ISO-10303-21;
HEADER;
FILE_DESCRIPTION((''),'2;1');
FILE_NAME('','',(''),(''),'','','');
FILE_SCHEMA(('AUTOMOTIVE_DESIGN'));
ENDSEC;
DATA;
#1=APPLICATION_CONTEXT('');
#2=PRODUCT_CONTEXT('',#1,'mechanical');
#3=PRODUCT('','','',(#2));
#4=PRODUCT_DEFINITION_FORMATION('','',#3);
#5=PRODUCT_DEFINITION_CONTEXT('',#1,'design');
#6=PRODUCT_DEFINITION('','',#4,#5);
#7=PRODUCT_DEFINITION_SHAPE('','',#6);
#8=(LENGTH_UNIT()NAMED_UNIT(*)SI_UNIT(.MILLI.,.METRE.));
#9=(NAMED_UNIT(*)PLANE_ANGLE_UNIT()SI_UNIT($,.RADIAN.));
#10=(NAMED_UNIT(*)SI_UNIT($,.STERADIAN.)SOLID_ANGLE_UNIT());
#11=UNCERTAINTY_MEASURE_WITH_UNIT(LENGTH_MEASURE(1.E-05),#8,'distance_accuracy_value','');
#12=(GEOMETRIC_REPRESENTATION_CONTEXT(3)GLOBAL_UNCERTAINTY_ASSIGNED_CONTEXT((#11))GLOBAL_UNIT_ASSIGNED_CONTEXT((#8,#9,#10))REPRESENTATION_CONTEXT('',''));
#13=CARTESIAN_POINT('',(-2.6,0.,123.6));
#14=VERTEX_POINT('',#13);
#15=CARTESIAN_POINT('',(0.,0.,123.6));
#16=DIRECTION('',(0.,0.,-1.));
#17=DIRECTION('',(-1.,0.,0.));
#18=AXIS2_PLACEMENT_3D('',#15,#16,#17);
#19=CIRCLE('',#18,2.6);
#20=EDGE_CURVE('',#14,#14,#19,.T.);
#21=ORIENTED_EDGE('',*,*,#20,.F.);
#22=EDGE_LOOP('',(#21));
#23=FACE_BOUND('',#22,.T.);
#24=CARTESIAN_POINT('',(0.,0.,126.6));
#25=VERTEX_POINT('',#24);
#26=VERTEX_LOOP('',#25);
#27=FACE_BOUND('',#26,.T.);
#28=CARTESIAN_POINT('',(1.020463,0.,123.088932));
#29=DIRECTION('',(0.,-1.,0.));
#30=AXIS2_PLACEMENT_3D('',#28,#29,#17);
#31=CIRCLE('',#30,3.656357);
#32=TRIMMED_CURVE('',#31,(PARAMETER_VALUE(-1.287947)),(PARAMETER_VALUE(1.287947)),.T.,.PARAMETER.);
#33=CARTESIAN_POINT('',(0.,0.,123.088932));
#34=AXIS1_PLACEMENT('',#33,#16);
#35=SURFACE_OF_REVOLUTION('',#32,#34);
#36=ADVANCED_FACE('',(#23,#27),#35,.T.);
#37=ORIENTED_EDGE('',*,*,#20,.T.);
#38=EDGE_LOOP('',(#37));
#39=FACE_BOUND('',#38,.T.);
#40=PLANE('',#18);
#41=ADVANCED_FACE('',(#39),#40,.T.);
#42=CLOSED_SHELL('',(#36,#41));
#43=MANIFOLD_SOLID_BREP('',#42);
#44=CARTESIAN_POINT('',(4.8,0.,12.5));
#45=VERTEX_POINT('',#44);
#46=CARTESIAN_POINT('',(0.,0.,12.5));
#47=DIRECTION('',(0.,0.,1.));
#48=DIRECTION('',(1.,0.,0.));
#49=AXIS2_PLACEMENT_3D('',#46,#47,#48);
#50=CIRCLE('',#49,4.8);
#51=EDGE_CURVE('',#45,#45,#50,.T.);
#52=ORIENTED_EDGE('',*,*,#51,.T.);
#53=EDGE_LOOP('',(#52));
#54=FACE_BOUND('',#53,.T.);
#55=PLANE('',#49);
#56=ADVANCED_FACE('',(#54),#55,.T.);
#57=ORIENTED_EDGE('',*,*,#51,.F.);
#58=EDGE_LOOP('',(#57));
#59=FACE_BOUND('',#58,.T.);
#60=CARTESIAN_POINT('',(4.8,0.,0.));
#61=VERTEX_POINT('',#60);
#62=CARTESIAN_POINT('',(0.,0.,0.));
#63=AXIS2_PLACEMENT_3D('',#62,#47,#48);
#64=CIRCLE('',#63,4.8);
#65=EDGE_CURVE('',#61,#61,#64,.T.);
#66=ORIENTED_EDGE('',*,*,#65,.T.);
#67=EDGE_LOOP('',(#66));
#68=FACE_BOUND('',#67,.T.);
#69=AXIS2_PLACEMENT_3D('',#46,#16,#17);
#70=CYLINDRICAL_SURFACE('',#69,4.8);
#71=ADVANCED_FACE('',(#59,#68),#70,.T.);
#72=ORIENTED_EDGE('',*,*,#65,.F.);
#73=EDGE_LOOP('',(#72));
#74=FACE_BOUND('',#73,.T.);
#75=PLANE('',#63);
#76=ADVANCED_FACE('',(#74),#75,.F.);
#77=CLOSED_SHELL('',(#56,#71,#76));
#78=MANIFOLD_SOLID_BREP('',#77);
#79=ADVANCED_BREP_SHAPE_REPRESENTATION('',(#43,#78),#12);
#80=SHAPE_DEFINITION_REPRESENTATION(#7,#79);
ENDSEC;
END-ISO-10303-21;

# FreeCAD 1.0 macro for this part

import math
import FreeCAD as App
import Part
import Sketcher
Q = App.Units.Quantity

doc = App.newDocument("Part")
body = doc.addObject("PartDesign::Body", "Body")

# Sketch on XY plane
sketch1 = body.newObject("Sketcher::SketchObject", "Sketch")
sketch1.AttachmentSupport = (doc.getObject("XY_Plane"), [""])
sketch1.MapMode = "FlatFace"
sketch1.addGeometry(Part.Circle(App.Vector(0, 0, 0), App.Vector(0, 0, 1), 4.8), False)
sketch1.addConstraint([
    Sketcher.Constraint("Coincident", 0, 3, -1, 1),
    Sketcher.Constraint("Diameter", 0, Q("9.6 mm")),
])
pad1 = body.newObject("PartDesign::Pad", "Pad")
pad1.Profile = sketch1
pad1.Length = 12.5
body2 = doc.addObject("PartDesign::Body", "Body001")

# Sketch on XZ plane
sketch2 = body2.newObject("Sketcher::SketchObject", "Sketch001")
sketch2.AttachmentSupport = (doc.getObject("XZ_Plane001"), [""])
sketch2.MapMode = "FlatFace"
sketch2.addGeometry([
    Part.LineSegment(App.Vector(0, 126.6, 0), App.Vector(0, 123.6, 0)),
    Part.LineSegment(App.Vector(0, 123.6, 0), App.Vector(-2.6, 123.6, 0)),
    Part.ArcOfCircle(Part.Circle(App.Vector(1, 123.1, 0), App.Vector(0, 0, 1), 3.7), math.radians(106), math.radians(172)),
], False)
sketch2.addConstraint([
    Sketcher.Constraint("Coincident", 0, 2, 1, 1),
    Sketcher.Constraint("Coincident", 1, 2, 2, 2),
    Sketcher.Constraint("Coincident", 2, 1, 0, 1),
    Sketcher.Constraint("Vertical", 0),
    Sketcher.Constraint("Horizontal", 1),
    Sketcher.Constraint("PointOnObject", 0, 2, -2),
    Sketcher.Constraint("DistanceY", 0, 2, 0, 1, Q("3 mm")),
    Sketcher.Constraint("DistanceX", 1, 2, 1, 1, Q("2.6 mm")),
    Sketcher.Constraint("DistanceY", -1, 1, 0, 2, Q("123.6 mm")),
    Sketcher.Constraint("Radius", 2, Q("3.656357 mm")),
])
revolution = body2.newObject("PartDesign::Revolution", "Revolution")
revolution.Profile = sketch2
revolution.ReferenceAxis = (sketch2, ["V_Axis"])
revolution.Angle = 360

doc.recompute()
